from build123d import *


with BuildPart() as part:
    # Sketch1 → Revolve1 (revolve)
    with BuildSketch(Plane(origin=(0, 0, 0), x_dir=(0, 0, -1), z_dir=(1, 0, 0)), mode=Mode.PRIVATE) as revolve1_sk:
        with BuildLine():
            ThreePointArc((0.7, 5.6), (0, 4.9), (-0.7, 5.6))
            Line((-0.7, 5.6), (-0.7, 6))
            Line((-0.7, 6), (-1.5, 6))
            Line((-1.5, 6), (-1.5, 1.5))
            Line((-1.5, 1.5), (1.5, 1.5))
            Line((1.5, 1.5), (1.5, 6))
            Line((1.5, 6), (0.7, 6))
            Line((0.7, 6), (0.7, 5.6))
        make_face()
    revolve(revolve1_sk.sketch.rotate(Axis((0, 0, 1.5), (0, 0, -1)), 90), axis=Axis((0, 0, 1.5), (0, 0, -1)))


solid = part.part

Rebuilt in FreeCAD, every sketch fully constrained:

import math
import FreeCAD as App
import Part
import Sketcher
from FreeCAD import Vector

doc = App.newDocument("Part")
params = doc.addObject("Spreadsheet::Sheet", "Params")
for row, (alias, value) in enumerate([
    ("sketch1_radius", "0.7 mm"),
    ("sketch1_height", "3 mm"),
    ("sketch1_width", "0.4 mm"),
    ("sketch1_width2", "4.5 mm"),
    ("revolution_angle", "360 deg"),
], start=1):
    params.set(f"A{row}", alias)
    params.set(f"B{row}", "=" + value)
    params.setAlias(f"B{row}", alias)

body = doc.addObject("PartDesign::Body", "Body")

# Sketch on YZ plane
sketch1 = body.newObject("Sketcher::SketchObject", "Sketch")
sketch1.AttachmentSupport = (doc.getObject("YZ_Plane"), [""])
sketch1.MapMode = "FlatFace"
sketch1.addGeometry(Part.ArcOfCircle(Part.Circle(Vector(5.6, 0, 0), Vector(0, 0, 1), 0.7), math.radians(90), math.radians(270)), False)
sketch1.addGeometry(Part.LineSegment(Vector(5.6, 0.7, 0), Vector(6, 0.7, 0)), False)
sketch1.addGeometry(Part.LineSegment(Vector(6, 0.7, 0), Vector(6, 1.5, 0)), False)
sketch1.addGeometry(Part.LineSegment(Vector(6, 1.5, 0), Vector(1.5, 1.5, 0)), False)
sketch1.addGeometry(Part.LineSegment(Vector(1.5, 1.5, 0), Vector(1.5, -1.5, 0)), False)
sketch1.addGeometry(Part.LineSegment(Vector(1.5, -1.5, 0), Vector(6, -1.5, 0)), False)
sketch1.addGeometry(Part.LineSegment(Vector(6, -1.5, 0), Vector(6, -0.7, 0)), False)
sketch1.addGeometry(Part.LineSegment(Vector(6, -0.7, 0), Vector(5.6, -0.7, 0)), False)
sketch1.addConstraint(Sketcher.Constraint("Tangent", 0, 1, 1, 1))
sketch1.addConstraint(Sketcher.Constraint("Coincident", 1, 2, 2, 1))
sketch1.addConstraint(Sketcher.Constraint("Coincident", 2, 2, 3, 1))
sketch1.addConstraint(Sketcher.Constraint("Coincident", 3, 2, 4, 1))
sketch1.addConstraint(Sketcher.Constraint("Coincident", 4, 2, 5, 1))
sketch1.addConstraint(Sketcher.Constraint("Coincident", 5, 2, 6, 1))
sketch1.addConstraint(Sketcher.Constraint("Coincident", 6, 2, 7, 1))
sketch1.addConstraint(Sketcher.Constraint("Tangent", 7, 2, 0, 2))
sketch1.addConstraint(Sketcher.Constraint("Horizontal", 1))
sketch1.addConstraint(Sketcher.Constraint("Vertical", 2))
sketch1.addConstraint(Sketcher.Constraint("Horizontal", 3))
sketch1.addConstraint(Sketcher.Constraint("Vertical", 4))
sketch1.addConstraint(Sketcher.Constraint("Horizontal", 5))
sketch1.addConstraint(Sketcher.Constraint("Vertical", 6))
sketch1.addConstraint(Sketcher.Constraint("Horizontal", 7))
sketch1.addConstraint(Sketcher.Constraint("Symmetric", 2, 2, 5, 2, -1))
sketch1.addConstraint(Sketcher.Constraint("PointOnObject", 0, 3, -1))
sketch1.addConstraint(Sketcher.Constraint("Radius", 0, 0.7))
sketch1.addConstraint(Sketcher.Constraint("DistanceY", 4, 2, 4, 1, 3.0))
sketch1.addConstraint(Sketcher.Constraint("DistanceX", 1, 1, 1, 2, 0.4))
sketch1.addConstraint(Sketcher.Constraint("DistanceX", 3, 2, 3, 1, 4.5))
sketch1.addConstraint(Sketcher.Constraint("DistanceX", -1, 1, 1, 2, 6.0))
sketch1.setExpression("Constraints[17]", "Params.sketch1_radius")
sketch1.setExpression("Constraints[18]", "Params.sketch1_height")
sketch1.setExpression("Constraints[19]", "Params.sketch1_width")
sketch1.setExpression("Constraints[20]", "Params.sketch1_width2")
revolution = body.newObject("PartDesign::Revolution", "Revolution")
revolution.Profile = sketch1
revolution.ReferenceAxis = (sketch1, ["V_Axis"])
revolution.setExpression("Angle", "Params.revolution_angle")

doc.recompute()
